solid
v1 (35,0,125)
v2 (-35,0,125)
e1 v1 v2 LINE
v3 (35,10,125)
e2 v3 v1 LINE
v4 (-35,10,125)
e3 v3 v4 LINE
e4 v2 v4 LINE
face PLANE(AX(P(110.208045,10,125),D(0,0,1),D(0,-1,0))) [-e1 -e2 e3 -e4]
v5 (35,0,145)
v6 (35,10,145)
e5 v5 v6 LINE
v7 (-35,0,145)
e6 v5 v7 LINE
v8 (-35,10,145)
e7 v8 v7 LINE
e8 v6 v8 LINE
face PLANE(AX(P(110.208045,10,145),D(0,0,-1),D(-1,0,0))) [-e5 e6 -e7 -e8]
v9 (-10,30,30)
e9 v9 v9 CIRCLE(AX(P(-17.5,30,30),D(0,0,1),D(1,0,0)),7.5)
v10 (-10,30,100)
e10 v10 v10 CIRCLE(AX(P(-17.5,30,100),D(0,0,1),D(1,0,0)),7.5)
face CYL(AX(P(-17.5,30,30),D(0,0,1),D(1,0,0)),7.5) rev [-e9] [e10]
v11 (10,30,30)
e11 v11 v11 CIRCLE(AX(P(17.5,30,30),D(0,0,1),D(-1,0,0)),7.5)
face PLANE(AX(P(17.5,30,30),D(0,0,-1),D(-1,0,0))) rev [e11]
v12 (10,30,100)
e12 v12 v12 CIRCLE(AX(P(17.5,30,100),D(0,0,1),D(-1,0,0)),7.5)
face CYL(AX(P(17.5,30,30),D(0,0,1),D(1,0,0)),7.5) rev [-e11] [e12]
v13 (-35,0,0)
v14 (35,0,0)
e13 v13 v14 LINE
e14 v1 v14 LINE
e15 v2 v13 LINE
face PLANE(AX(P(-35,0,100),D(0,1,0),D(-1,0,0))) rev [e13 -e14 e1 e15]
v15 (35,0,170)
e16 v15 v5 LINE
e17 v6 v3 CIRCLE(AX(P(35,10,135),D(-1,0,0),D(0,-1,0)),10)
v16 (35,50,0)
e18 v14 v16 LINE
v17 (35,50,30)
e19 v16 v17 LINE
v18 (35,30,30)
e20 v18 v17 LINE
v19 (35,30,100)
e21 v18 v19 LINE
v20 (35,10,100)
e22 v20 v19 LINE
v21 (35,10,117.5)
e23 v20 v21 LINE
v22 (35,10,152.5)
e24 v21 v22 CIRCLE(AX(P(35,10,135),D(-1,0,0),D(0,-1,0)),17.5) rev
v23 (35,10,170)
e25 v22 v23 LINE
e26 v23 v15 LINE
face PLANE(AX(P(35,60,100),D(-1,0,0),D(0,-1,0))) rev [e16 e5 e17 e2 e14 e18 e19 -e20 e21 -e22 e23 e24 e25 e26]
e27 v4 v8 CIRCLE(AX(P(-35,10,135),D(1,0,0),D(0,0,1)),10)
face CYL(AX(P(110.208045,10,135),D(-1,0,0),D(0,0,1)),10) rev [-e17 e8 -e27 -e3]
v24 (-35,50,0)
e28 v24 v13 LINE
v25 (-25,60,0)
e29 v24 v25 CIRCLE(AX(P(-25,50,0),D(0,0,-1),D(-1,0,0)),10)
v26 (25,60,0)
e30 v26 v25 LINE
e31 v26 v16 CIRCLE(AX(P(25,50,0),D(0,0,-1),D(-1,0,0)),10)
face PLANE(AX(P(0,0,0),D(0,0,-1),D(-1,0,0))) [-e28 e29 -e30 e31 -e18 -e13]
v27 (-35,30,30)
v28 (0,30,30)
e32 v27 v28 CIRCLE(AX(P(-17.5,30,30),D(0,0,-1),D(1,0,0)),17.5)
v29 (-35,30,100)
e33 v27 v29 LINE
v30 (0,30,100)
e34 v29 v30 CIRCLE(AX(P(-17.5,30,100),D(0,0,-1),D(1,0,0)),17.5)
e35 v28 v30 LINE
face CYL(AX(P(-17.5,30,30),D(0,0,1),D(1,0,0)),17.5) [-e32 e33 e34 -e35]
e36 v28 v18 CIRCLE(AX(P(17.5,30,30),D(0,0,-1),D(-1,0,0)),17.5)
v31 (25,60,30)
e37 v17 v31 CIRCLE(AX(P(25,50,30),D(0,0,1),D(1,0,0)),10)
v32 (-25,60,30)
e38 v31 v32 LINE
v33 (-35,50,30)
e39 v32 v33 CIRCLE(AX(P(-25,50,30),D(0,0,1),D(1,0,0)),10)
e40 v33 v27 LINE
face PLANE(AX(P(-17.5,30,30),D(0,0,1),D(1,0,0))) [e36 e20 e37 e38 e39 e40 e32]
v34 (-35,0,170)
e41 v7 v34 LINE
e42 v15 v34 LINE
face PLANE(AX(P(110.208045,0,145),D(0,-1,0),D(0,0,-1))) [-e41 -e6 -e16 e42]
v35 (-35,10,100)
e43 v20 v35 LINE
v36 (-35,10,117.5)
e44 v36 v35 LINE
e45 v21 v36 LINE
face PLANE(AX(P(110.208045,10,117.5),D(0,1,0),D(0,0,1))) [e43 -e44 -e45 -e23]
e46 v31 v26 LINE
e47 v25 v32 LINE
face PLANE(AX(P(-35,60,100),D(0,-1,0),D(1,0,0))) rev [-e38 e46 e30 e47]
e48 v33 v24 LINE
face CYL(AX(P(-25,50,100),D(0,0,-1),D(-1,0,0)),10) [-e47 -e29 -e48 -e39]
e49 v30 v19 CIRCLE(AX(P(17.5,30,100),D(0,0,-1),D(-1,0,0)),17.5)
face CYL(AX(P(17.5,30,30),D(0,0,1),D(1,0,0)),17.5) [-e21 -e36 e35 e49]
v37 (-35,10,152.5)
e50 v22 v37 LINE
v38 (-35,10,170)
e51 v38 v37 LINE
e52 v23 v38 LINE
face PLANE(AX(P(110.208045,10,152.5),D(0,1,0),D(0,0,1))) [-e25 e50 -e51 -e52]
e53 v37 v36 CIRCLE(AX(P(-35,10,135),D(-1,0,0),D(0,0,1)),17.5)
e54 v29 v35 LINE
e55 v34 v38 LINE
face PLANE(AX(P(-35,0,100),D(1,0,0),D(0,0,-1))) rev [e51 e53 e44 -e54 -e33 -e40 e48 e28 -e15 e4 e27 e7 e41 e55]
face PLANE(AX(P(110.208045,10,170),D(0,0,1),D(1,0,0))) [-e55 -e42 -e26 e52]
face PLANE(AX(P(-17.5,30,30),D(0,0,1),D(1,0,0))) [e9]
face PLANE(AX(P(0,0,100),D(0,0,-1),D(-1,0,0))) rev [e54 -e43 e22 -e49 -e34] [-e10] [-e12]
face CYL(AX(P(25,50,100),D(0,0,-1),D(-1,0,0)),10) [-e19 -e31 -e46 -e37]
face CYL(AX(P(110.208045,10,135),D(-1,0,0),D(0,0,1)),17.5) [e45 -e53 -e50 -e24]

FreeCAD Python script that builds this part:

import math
import FreeCAD as App
import Part
import Sketcher

V = App.Vector
Q = App.Units.Quantity


def edges_at(feature, points):
    """Names of the edges that pass closest to the given points."""
    edges = feature.Shape.Edges
    near = lambda p: min(range(len(edges)), key=lambda i: edges[i].distToShape(Part.Vertex(*p))[0])
    return sorted({f"Edge{near(p) + 1}" for p in points})


def add_polygon(sketch, points):
    """Adds a closed chain of lines whose ends are joined by coincident constraints."""
    first, n = sketch.GeometryCount, len(points)
    for a, b in zip(points, points[1:] + points[:1]):
        sketch.addGeometry(Part.LineSegment(App.Vector(*a, 0), App.Vector(*b, 0)), False)
    for i in range(n):
        sketch.addConstraint(Sketcher.Constraint("Coincident", first + i, 2, first + (i + 1) % n, 1))

doc = App.newDocument("Part")
body = doc.addObject("PartDesign::Body", "Body")

sketch1 = body.newObject("Sketcher::SketchObject", "Sketch")
sketch1.AttachmentSupport = (doc.getObject("XY_Plane"), [""])
sketch1.MapMode = "FlatFace"
add_polygon(sketch1, [(-35, 60), (-35, 0), (35, 0), (35, 60)])
sketch1.addConstraint([
    Sketcher.Constraint("Vertical", 0),
    Sketcher.Constraint("Horizontal", 1),
    Sketcher.Constraint("Vertical", 2),
    Sketcher.Constraint("Horizontal", 3),
    Sketcher.Constraint("Symmetric", 0, 2, 1, 2, -1, 1),
    Sketcher.Constraint("DistanceX", 1, 1, 1, 2, Q("70 mm")),
    Sketcher.Constraint("DistanceY", 0, 2, 0, 1, Q("60 mm")),
])
pad1 = body.newObject("PartDesign::Pad", "Pad")
pad1.Profile = sketch1
pad1.Length = 100

sketch2 = body.newObject("Sketcher::SketchObject", "Sketch001")
sketch2.AttachmentSupport = (doc.getObject("XY_Plane"), [""])
sketch2.MapMode = "FlatFace"
sketch2.AttachmentOffset = App.Placement(V(0, 0, 100), App.Rotation())
sketch2.addGeometry([
    Part.Circle(V(-18, 30, 0), V(0, 0, 1), 8),
    Part.Circle(V(18, 30, 0), V(0, 0, 1), 8),
    Part.LineSegment(V(35, 60, 0), V(-35, 60, 0)),
    Part.LineSegment(V(-35, 60, 0), V(-35, 30, 0)),
    Part.ArcOfCircle(Part.Circle(V(-18, 30, 0), V(0, 0, 1), 18), math.radians(0), math.radians(180)),
    Part.ArcOfCircle(Part.Circle(V(18, 30, 0), V(0, 0, 1), 18), math.radians(0), math.radians(180)),
    Part.LineSegment(V(35, 30, 0), V(35, 60, 0)),
], False)
sketch2.addConstraint([
    Sketcher.Constraint("Coincident", 2, 2, 3, 1),
    Sketcher.Constraint("Tangent", 3, 2, 4, 2),
    Sketcher.Constraint("Tangent", 4, 1, 5, 2),
    Sketcher.Constraint("Tangent", 5, 1, 6, 1),
    Sketcher.Constraint("Coincident", 6, 2, 2, 1),
    Sketcher.Constraint("Horizontal", 2),
    Sketcher.Constraint("Vertical", 3),
    Sketcher.Constraint("Vertical", 6),
    Sketcher.Constraint("Coincident", 4, 3, 0, 3),
    Sketcher.Constraint("Coincident", 5, 3, 1, 3),
    Sketcher.Constraint("Equal", 0, 1),
    Sketcher.Constraint("Equal", 4, 5),
    Sketcher.Constraint("Symmetric", 0, 3, 1, 3, -2),
    Sketcher.Constraint("Diameter", 0, Q("15 mm")),
    Sketcher.Constraint("Radius", 4, Q("17.5 mm")),
    Sketcher.Constraint("DistanceY", 3, 2, 3, 1, Q("30 mm")),
    Sketcher.Constraint("DistanceY", -1, 1, 0, 3, Q("30 mm")),
])
pocket1 = body.newObject("PartDesign::Pocket", "Pocket")
pocket1.Profile = sketch2
pocket1.Length = 70

sketch3 = body.newObject("Sketcher::SketchObject", "Sketch002")
sketch3.AttachmentSupport = (doc.getObject("YZ_Plane"), [""])
sketch3.MapMode = "FlatFace"
sketch3.AttachmentOffset = App.Placement(V(0, 0, -35), App.Rotation())
sketch3.addGeometry([
    Part.LineSegment(V(0, 100, 0), V(0, 125, 0)),
    Part.LineSegment(V(0, 125, 0), V(10, 125, 0)),
    Part.ArcOfCircle(Part.Circle(V(10, 135, 0), V(0, 0, 1), 10), math.radians(-90), math.radians(90)),
    Part.LineSegment(V(10, 145, 0), V(0, 145, 0)),
    Part.LineSegment(V(0, 145, 0), V(0, 170, 0)),
    Part.LineSegment(V(0, 170, 0), V(10, 170, 0)),
    Part.LineSegment(V(10, 170, 0), V(10, 152, 0)),
    Part.ArcOfCircle(Part.Circle(V(10, 135, 0), V(0, 0, 1), 18), math.radians(-90), math.radians(90)),
    Part.LineSegment(V(10, 118, 0), V(10, 100, 0)),
    Part.LineSegment(V(10, 100, 0), V(0, 100, 0)),
], False)
sketch3.addConstraint([
    Sketcher.Constraint("Coincident", 0, 2, 1, 1),
    Sketcher.Constraint("Tangent", 1, 2, 2, 1),
    Sketcher.Constraint("Tangent", 2, 2, 3, 1),
    Sketcher.Constraint("Coincident", 3, 2, 4, 1),
    Sketcher.Constraint("Coincident", 4, 2, 5, 1),
    Sketcher.Constraint("Coincident", 5, 2, 6, 1),
    Sketcher.Constraint("Coincident", 6, 2, 7, 2),
    Sketcher.Constraint("Coincident", 7, 1, 8, 1),
    Sketcher.Constraint("Coincident", 8, 2, 9, 1),
    Sketcher.Constraint("Coincident", 9, 2, 0, 1),
    Sketcher.Constraint("Vertical", 0),
    Sketcher.Constraint("Horizontal", 1),
    Sketcher.Constraint("Horizontal", 3),
    Sketcher.Constraint("Vertical", 4),
    Sketcher.Constraint("Horizontal", 5),
    Sketcher.Constraint("Vertical", 6),
    Sketcher.Constraint("Vertical", 8),
    Sketcher.Constraint("Horizontal", 9),
    Sketcher.Constraint("Coincident", 7, 3, 2, 3),
    Sketcher.Constraint("PointOnObject", 0, 2, -2),
    Sketcher.Constraint("PointOnObject", 3, 2, -2),
    Sketcher.Constraint("Vertical", 2, 2, 5, 2),
    Sketcher.Constraint("Vertical", 6, 2, 7, 1),
    Sketcher.Constraint("Equal", 0, 4),
    Sketcher.Constraint("Radius", 2, Q("10 mm")),
    Sketcher.Constraint("Radius", 7, Q("17.5 mm")),
    Sketcher.Constraint("DistanceX", 1, 1, 1, 2, Q("10 mm")),
    Sketcher.Constraint("DistanceY", 0, 1, 0, 2, Q("25 mm")),
    Sketcher.Constraint("DistanceY", -1, 1, 2, 3, Q("135 mm")),
])
pad2 = body.newObject("PartDesign::Pad", "Pad001")
pad2.Profile = sketch3
pad2.Length = 70
doc.recompute()

fillet = body.newObject("PartDesign::Fillet", "Fillet")
fillet.Base = (pad2, edges_at(pad2, [(-35, 60, 15), (35, 60, 15)]))
fillet.Radius = 10

doc.recompute()
